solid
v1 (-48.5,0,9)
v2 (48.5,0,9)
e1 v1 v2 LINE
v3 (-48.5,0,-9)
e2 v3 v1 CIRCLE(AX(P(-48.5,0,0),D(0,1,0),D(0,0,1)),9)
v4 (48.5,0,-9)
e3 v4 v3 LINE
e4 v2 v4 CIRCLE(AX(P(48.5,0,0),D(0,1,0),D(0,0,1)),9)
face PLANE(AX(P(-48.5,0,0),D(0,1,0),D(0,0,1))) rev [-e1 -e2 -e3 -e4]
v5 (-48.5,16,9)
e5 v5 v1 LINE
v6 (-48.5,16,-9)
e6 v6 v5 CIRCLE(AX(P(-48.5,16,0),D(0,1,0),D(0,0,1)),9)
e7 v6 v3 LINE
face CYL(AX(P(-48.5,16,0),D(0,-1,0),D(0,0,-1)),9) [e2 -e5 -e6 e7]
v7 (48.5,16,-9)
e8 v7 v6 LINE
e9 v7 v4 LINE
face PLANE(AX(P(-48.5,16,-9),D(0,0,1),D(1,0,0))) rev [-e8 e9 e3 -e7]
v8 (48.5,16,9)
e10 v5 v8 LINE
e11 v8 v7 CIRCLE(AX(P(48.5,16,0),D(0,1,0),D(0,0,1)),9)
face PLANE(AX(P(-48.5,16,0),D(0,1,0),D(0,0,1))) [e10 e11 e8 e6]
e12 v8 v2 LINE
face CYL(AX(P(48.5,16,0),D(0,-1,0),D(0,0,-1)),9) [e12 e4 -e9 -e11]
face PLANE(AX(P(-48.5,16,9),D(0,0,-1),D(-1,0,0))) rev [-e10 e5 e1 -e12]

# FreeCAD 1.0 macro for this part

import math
import FreeCAD as App
import Part
import Sketcher

V = App.Vector
Q = App.Units.Quantity

doc = App.newDocument("Part")
body = doc.addObject("PartDesign::Body", "Body")

# Sketch on XZ plane
sketch1 = doc.addObject("Sketcher::SketchObject", "Sketch")
body.addObject(sketch1)
sketch1.AttachmentSupport = (doc.XZ_Plane, [""])
sketch1.MapMode = "FlatFace"
sketch1.addGeometry(Part.LineSegment(V(48, -9, 0), V(-48, -9, 0)), False)
sketch1.addGeometry(Part.ArcOfCircle(Part.Circle(V(-48, 0, 0), V(0, 0, 1), 9), math.radians(90), math.radians(270)), False)
sketch1.addGeometry(Part.LineSegment(V(-48, 9, 0), V(48, 9, 0)), False)
sketch1.addGeometry(Part.ArcOfCircle(Part.Circle(V(48, 0, 0), V(0, 0, 1), 9), math.radians(-90), math.radians(90)), False)
sketch1.addConstraint(Sketcher.Constraint("Tangent", 0, 2, 1, 2))
sketch1.addConstraint(Sketcher.Constraint("Tangent", 1, 1, 2, 1))
sketch1.addConstraint(Sketcher.Constraint("Tangent", 2, 2, 3, 2))
sketch1.addConstraint(Sketcher.Constraint("Tangent", 3, 1, 0, 1))
sketch1.addConstraint(Sketcher.Constraint("Horizontal", 0))
sketch1.addConstraint(Sketcher.Constraint("Horizontal", 2))
sketch1.addConstraint(Sketcher.Constraint("Symmetric", 1, 3, 3, 3, -1, 1))
sketch1.addConstraint(Sketcher.Constraint("Radius", 1, Q("9 mm")))
sketch1.addConstraint(Sketcher.Constraint("DistanceX", 0, 2, 0, 1, Q("97 mm")))
pad1 = doc.addObject("PartDesign::Pad", "Pad")
body.addObject(pad1)
pad1.Profile = sketch1
pad1.Length = 16
pad1.Reversed = True

doc.recompute()
